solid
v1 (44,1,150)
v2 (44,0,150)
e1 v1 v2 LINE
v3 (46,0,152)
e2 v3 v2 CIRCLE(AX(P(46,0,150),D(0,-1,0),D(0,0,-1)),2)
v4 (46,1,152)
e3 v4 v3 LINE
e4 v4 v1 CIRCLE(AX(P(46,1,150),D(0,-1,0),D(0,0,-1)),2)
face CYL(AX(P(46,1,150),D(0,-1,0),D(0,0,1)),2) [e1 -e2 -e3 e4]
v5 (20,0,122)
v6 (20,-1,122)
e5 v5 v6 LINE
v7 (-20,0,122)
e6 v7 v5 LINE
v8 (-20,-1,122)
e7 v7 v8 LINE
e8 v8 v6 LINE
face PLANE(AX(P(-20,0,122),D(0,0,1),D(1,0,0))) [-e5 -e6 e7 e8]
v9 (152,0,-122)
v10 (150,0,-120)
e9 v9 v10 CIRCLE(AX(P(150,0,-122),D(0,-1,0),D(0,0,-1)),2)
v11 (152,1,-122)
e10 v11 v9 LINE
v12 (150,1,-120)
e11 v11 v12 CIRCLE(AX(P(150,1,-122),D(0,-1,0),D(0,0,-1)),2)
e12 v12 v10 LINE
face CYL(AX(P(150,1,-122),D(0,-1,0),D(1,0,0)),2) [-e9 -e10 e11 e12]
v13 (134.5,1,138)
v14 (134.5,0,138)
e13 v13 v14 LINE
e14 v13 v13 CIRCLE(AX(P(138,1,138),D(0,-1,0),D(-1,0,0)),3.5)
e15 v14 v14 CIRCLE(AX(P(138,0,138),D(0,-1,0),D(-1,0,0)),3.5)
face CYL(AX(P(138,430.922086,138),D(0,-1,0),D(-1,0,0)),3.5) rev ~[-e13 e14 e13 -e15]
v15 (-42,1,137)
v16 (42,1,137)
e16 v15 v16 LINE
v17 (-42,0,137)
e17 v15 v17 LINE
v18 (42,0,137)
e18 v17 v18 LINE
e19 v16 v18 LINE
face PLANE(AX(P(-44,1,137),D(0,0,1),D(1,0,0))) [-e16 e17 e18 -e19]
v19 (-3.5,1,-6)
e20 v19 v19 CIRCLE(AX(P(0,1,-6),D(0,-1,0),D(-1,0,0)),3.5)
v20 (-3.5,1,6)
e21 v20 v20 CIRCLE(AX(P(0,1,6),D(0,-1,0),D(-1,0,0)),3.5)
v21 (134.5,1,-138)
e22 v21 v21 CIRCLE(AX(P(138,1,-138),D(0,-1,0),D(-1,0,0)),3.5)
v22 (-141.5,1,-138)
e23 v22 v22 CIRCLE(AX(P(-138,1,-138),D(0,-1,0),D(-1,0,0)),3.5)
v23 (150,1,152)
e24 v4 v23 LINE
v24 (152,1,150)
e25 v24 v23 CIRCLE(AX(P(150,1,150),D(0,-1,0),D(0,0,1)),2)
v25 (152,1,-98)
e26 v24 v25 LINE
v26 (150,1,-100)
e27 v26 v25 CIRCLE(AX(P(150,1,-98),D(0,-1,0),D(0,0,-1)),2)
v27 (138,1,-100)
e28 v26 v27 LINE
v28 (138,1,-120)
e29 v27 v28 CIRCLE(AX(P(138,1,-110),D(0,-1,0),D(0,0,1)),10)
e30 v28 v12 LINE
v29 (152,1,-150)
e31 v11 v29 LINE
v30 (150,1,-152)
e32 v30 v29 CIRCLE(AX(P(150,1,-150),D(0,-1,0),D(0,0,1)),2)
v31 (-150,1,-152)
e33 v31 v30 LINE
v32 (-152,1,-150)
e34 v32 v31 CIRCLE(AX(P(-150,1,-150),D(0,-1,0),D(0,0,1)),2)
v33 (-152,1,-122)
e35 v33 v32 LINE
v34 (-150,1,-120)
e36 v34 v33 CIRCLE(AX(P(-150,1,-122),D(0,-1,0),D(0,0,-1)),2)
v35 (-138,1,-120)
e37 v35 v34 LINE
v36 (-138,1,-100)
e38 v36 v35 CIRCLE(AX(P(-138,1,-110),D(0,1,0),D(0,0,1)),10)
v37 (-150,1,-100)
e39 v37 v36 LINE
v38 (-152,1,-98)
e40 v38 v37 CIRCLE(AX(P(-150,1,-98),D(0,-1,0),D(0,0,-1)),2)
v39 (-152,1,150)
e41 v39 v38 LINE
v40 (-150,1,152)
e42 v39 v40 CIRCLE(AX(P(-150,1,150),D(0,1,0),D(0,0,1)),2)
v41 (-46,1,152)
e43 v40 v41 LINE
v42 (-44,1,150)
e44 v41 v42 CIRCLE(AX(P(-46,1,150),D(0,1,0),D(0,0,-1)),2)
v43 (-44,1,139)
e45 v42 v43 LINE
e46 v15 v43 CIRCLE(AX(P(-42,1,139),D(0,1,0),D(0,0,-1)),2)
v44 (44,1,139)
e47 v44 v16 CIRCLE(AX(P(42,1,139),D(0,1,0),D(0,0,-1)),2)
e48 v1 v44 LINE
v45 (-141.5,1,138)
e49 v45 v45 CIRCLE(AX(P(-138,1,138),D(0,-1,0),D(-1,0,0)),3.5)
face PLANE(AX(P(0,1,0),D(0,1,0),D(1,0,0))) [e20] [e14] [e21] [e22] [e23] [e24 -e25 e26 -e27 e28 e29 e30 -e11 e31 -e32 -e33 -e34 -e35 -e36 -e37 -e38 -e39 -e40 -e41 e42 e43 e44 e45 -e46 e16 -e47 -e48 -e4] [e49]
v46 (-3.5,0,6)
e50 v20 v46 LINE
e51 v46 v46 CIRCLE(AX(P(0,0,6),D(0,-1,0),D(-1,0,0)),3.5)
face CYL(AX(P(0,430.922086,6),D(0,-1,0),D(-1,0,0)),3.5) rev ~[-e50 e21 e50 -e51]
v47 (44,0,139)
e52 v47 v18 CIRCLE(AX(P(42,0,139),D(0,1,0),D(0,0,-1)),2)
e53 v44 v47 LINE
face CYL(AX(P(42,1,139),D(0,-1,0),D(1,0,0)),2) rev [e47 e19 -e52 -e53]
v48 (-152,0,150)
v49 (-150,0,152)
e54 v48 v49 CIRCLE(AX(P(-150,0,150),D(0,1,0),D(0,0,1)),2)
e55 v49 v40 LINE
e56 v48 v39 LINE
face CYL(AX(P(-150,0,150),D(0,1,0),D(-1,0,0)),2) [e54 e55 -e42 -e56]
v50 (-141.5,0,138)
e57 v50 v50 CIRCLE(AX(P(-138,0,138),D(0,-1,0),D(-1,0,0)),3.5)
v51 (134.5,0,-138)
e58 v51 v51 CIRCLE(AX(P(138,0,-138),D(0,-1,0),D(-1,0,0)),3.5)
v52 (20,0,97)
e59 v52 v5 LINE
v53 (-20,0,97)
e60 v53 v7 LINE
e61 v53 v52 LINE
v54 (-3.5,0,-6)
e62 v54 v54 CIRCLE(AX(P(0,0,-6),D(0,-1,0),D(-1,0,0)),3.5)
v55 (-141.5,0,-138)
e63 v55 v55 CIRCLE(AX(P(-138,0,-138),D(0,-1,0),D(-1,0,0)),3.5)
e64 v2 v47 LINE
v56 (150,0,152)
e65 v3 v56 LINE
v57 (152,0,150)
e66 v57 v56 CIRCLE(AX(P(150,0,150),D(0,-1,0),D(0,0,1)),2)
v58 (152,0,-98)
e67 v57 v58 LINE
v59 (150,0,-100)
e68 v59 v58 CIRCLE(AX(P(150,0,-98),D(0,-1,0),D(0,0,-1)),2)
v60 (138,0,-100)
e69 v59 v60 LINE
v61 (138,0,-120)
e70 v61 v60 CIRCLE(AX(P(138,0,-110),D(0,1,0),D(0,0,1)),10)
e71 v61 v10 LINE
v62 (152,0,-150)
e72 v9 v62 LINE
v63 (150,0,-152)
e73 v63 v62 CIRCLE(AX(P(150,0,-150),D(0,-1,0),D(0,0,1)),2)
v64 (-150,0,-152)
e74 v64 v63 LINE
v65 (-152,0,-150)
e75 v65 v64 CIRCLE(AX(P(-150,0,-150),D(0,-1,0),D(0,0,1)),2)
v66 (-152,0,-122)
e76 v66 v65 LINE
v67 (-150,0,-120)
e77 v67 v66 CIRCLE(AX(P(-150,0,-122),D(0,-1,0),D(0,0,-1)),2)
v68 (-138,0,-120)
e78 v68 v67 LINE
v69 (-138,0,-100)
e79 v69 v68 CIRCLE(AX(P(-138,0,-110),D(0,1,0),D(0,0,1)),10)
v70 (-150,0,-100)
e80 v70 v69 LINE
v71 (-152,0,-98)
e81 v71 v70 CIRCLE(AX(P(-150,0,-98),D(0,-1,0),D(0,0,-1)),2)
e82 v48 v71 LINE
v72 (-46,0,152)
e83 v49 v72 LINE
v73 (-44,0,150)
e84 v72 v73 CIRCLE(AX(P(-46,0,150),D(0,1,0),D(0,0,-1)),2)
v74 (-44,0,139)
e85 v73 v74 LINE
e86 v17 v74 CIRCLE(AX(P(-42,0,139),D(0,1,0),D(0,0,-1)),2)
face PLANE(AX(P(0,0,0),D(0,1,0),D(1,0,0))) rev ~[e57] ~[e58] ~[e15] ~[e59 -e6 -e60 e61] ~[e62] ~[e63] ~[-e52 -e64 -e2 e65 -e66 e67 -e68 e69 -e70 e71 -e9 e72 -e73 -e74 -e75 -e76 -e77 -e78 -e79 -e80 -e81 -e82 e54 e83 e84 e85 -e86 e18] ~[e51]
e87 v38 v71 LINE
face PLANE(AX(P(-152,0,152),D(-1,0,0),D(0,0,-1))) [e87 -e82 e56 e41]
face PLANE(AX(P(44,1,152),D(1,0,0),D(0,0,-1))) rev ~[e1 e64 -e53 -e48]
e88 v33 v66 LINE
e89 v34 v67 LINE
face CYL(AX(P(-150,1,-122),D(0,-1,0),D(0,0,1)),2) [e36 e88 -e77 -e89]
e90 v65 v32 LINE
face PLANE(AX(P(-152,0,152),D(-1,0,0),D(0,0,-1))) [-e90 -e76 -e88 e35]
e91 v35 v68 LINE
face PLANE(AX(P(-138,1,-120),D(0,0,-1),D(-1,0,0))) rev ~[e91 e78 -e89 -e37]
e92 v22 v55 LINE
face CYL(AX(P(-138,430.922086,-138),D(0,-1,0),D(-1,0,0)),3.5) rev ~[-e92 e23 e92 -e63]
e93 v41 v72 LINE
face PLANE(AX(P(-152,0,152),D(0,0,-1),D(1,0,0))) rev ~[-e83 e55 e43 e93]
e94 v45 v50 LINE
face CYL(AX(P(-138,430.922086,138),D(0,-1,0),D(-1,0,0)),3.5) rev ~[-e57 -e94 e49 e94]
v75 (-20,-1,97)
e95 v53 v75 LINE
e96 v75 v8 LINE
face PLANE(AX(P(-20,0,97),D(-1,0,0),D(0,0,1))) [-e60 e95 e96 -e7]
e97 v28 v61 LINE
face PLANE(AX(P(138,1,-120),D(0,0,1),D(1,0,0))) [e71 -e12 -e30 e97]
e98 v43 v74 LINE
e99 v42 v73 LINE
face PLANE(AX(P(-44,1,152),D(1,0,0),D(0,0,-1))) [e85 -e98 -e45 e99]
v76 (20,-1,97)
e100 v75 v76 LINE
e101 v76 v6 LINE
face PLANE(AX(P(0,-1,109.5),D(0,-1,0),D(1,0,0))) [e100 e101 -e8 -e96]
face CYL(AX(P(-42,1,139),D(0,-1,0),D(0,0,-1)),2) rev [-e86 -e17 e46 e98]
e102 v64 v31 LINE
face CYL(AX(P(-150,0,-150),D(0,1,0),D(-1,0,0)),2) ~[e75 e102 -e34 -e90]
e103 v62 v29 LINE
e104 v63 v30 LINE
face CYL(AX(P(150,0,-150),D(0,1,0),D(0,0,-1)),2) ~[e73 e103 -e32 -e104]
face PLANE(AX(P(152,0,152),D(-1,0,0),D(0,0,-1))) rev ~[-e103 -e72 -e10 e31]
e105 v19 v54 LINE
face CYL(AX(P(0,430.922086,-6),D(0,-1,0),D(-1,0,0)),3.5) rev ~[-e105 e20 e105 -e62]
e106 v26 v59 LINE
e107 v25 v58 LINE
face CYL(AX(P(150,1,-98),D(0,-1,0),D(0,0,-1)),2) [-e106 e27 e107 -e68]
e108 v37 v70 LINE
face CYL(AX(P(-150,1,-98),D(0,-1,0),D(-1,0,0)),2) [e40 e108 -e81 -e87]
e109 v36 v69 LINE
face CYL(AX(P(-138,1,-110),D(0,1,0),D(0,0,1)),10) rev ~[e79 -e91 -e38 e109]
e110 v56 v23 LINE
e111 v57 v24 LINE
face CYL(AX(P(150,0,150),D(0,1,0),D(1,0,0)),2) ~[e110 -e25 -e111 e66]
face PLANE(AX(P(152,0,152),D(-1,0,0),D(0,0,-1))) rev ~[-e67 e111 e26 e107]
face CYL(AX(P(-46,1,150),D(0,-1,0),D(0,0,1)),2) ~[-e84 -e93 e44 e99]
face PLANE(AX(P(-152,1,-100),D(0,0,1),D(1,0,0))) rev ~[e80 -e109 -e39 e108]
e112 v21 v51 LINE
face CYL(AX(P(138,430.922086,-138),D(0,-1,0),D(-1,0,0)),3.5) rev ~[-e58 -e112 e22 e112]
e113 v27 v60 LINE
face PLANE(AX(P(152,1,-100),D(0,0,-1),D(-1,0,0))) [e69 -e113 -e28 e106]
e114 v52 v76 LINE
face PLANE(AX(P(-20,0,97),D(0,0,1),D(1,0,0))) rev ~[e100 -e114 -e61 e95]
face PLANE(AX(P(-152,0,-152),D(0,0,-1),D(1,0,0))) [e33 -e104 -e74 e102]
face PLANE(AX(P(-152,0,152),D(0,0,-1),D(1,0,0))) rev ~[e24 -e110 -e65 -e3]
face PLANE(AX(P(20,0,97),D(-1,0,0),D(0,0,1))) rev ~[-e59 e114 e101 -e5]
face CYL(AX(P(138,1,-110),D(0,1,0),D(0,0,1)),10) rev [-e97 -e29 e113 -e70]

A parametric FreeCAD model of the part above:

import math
import FreeCAD as App
import Part
import Sketcher
Q = App.Units.Quantity


def edges_at(feature, points):
    """Names of the edges that pass closest to the given points."""
    edges = feature.Shape.Edges
    near = lambda p: min(range(len(edges)), key=lambda i: edges[i].distToShape(Part.Vertex(*p))[0])
    return sorted({f"Edge{near(p) + 1}" for p in points})

doc = App.newDocument("Part")
body = doc.addObject("PartDesign::Body", "Body")

# Sketch on XZ plane
sketch1 = body.newObject("Sketcher::SketchObject", "Sketch")
sketch1.AttachmentSupport = (doc.getObject("XZ_Plane"), [""])
sketch1.MapMode = "FlatFace"
sketch1.addGeometry(Part.LineSegment(App.Vector(-152, -152, 0), App.Vector(-152, 152, 0)), False)
sketch1.addGeometry(Part.LineSegment(App.Vector(-152, 152, 0), App.Vector(152, 152, 0)), False)
sketch1.addGeometry(Part.LineSegment(App.Vector(152, 152, 0), App.Vector(152, -152, 0)), False)
sketch1.addGeometry(Part.LineSegment(App.Vector(152, -152, 0), App.Vector(-152, -152, 0)), False)
sketch1.addConstraint(Sketcher.Constraint("Coincident", 0, 2, 1, 1))
sketch1.addConstraint(Sketcher.Constraint("Coincident", 1, 2, 2, 1))
sketch1.addConstraint(Sketcher.Constraint("Coincident", 2, 2, 3, 1))
sketch1.addConstraint(Sketcher.Constraint("Coincident", 3, 2, 0, 1))
sketch1.addConstraint(Sketcher.Constraint("Vertical", 0))
sketch1.addConstraint(Sketcher.Constraint("Horizontal", 1))
sketch1.addConstraint(Sketcher.Constraint("Vertical", 2))
sketch1.addConstraint(Sketcher.Constraint("Horizontal", 3))
sketch1.addConstraint(Sketcher.Constraint("Symmetric", 0, 2, 2, 2, -1, 1))
sketch1.addConstraint(Sketcher.Constraint("Equal", 3, 0))
sketch1.addConstraint(Sketcher.Constraint("DistanceX", 1, 1, 1, 2, Q("304 mm")))
pad1 = body.newObject("PartDesign::Pad", "Pad")
pad1.Profile = sketch1
pad1.Length = 1
pad1.Reversed = True

# Sketch on XZ plane
sketch2 = body.newObject("Sketcher::SketchObject", "Sketch001")
sketch2.AttachmentSupport = (doc.getObject("XZ_Plane"), [""])
sketch2.MapMode = "FlatFace"
sketch2.AttachmentOffset = App.Placement(App.Vector(0, 0, -1), App.Rotation())
sketch2.addGeometry(Part.LineSegment(App.Vector(-44, 137, 0), App.Vector(-44, 152, 0)), False)
sketch2.addGeometry(Part.LineSegment(App.Vector(-44, 152, 0), App.Vector(44, 152, 0)), False)
sketch2.addGeometry(Part.LineSegment(App.Vector(44, 152, 0), App.Vector(44, 137, 0)), False)
sketch2.addGeometry(Part.LineSegment(App.Vector(44, 137, 0), App.Vector(-44, 137, 0)), False)
sketch2.addGeometry(Part.LineSegment(App.Vector(-152, -100, 0), App.Vector(-138, -100, 0)), False)
sketch2.addGeometry(Part.ArcOfCircle(Part.Circle(App.Vector(-138, -110, 0), App.Vector(0, 0, 1), 10), math.radians(-90), math.radians(90)), False)
sketch2.addGeometry(Part.LineSegment(App.Vector(-138, -120, 0), App.Vector(-152, -120, 0)), False)
sketch2.addGeometry(Part.LineSegment(App.Vector(-152, -120, 0), App.Vector(-152, -100, 0)), False)
sketch2.addGeometry(Part.LineSegment(App.Vector(138, -100, 0), App.Vector(152, -100, 0)), False)
sketch2.addGeometry(Part.LineSegment(App.Vector(152, -100, 0), App.Vector(152, -120, 0)), False)
sketch2.addGeometry(Part.LineSegment(App.Vector(152, -120, 0), App.Vector(138, -120, 0)), False)
sketch2.addGeometry(Part.ArcOfCircle(Part.Circle(App.Vector(138, -110, 0), App.Vector(0, 0, 1), 10), math.radians(90), math.radians(270)), False)
sketch2.addConstraint(Sketcher.Constraint("Coincident", 0, 2, 1, 1))
sketch2.addConstraint(Sketcher.Constraint("Coincident", 1, 2, 2, 1))
sketch2.addConstraint(Sketcher.Constraint("Coincident", 2, 2, 3, 1))
sketch2.addConstraint(Sketcher.Constraint("Coincident", 3, 2, 0, 1))
sketch2.addConstraint(Sketcher.Constraint("Tangent", 4, 2, 5, 2))
sketch2.addConstraint(Sketcher.Constraint("Tangent", 5, 1, 6, 1))
sketch2.addConstraint(Sketcher.Constraint("Coincident", 6, 2, 7, 1))
sketch2.addConstraint(Sketcher.Constraint("Coincident", 7, 2, 4, 1))
sketch2.addConstraint(Sketcher.Constraint("Coincident", 8, 2, 9, 1))
sketch2.addConstraint(Sketcher.Constraint("Coincident", 9, 2, 10, 1))
sketch2.addConstraint(Sketcher.Constraint("Tangent", 10, 2, 11, 2))
sketch2.addConstraint(Sketcher.Constraint("Tangent", 11, 1, 8, 1))
sketch2.addConstraint(Sketcher.Constraint("Vertical", 0))
sketch2.addConstraint(Sketcher.Constraint("Horizontal", 1))
sketch2.addConstraint(Sketcher.Constraint("Vertical", 2))
sketch2.addConstraint(Sketcher.Constraint("Horizontal", 3))
sketch2.addConstraint(Sketcher.Constraint("Horizontal", 4))
sketch2.addConstraint(Sketcher.Constraint("Horizontal", 6))
sketch2.addConstraint(Sketcher.Constraint("Vertical", 7))
sketch2.addConstraint(Sketcher.Constraint("Horizontal", 8))
sketch2.addConstraint(Sketcher.Constraint("Vertical", 9))
sketch2.addConstraint(Sketcher.Constraint("Horizontal", 10))
sketch2.addConstraint(Sketcher.Constraint("Equal", 5, 11))
sketch2.addConstraint(Sketcher.Constraint("Symmetric", 5, 3, 11, 3, -2))
sketch2.addConstraint(Sketcher.Constraint("Equal", 6, 8))
sketch2.addConstraint(Sketcher.Constraint("Radius", 5, Q("10 mm")))
sketch2.addConstraint(Sketcher.Constraint("DistanceX", 1, 1, 1, 2, Q("88 mm")))
sketch2.addConstraint(Sketcher.Constraint("DistanceX", 4, 1, 4, 2, Q("14 mm")))
sketch2.addConstraint(Sketcher.Constraint("DistanceY", 0, 1, 0, 2, Q("15 mm")))
sketch2.addConstraint(Sketcher.Constraint("DistanceX", 5, 3, -1, 1, Q("138 mm")))
sketch2.addConstraint(Sketcher.Constraint("DistanceY", 5, 3, -1, 1, Q("110 mm")))
sketch2.addConstraint(Sketcher.Constraint("DistanceX", 0, 2, -1, 1, Q("44 mm")))
sketch2.addConstraint(Sketcher.Constraint("DistanceY", -1, 1, 0, 2, Q("152 mm")))
pocket1 = body.newObject("PartDesign::Pocket", "Pocket")
pocket1.Profile = sketch2
pocket1.Type = "ThroughAll"
pocket1.Reversed = True
doc.recompute()

fillet = body.newObject("PartDesign::Fillet", "Fillet")
fillet.Base = (pocket1, edges_at(pocket1, [
    (44, 0.5, 152),
    (-44, 0.5, 152),
    (-44, 0.5, 137),
    (44, 0.5, 137),
    (-152, 0.5, -100),
    (-152, 0.5, -120),
    (152, 0.5, -120),
    (152, 0.5, -100),
    (-152, 0.5, -152),
    (152, 0.5, -152),
    (152, 0.5, 152),
    (-152, 0.5, 152),
]))
fillet.Radius = 2

# Sketch on XZ plane
sketch3 = body.newObject("Sketcher::SketchObject", "Sketch002")
sketch3.AttachmentSupport = (doc.getObject("XZ_Plane"), [""])
sketch3.MapMode = "FlatFace"
sketch3.AttachmentOffset = App.Placement(App.Vector(0, 0, -1), App.Rotation())
sketch3.addGeometry(Part.Circle(App.Vector(-138, 138, 0), App.Vector(0, 0, 1), 3.5), False)
sketch3.addGeometry(Part.Circle(App.Vector(138, -138, 0), App.Vector(0, 0, 1), 3.5), False)
sketch3.addGeometry(Part.Circle(App.Vector(-138, -138, 0), App.Vector(0, 0, 1), 3.5), False)
sketch3.addGeometry(Part.Circle(App.Vector(138, 138, 0), App.Vector(0, 0, 1), 3.5), False)
sketch3.addGeometry(Part.Circle(App.Vector(0, 6, 0), App.Vector(0, 0, 1), 3.5), False)
sketch3.addGeometry(Part.Circle(App.Vector(0, -6, 0), App.Vector(0, 0, 1), 3.5), False)
sketch3.addConstraint(Sketcher.Constraint("Equal", 0, 1))
sketch3.addConstraint(Sketcher.Constraint("Equal", 1, 2))
sketch3.addConstraint(Sketcher.Constraint("Equal", 2, 3))
sketch3.addConstraint(Sketcher.Constraint("Equal", 3, 4))
sketch3.addConstraint(Sketcher.Constraint("Equal", 4, 5))
sketch3.addConstraint(Sketcher.Constraint("Symmetric", 0, 3, 1, 3, -1, 1))
sketch3.addConstraint(Sketcher.Constraint("Symmetric", 2, 3, 3, 3, -1, 1))
sketch3.addConstraint(Sketcher.Constraint("Symmetric", 4, 3, 5, 3, -1, 1))
sketch3.addConstraint(Sketcher.Constraint("Symmetric", 1, 3, 2, 3, -2))
sketch3.addConstraint(Sketcher.Constraint("PointOnObject", 4, 3, -2))
sketch3.addConstraint(Sketcher.Constraint("Diameter", 0, Q("7 mm")))
sketch3.addConstraint(Sketcher.Constraint("DistanceX", 0, 3, -1, 1, Q("138 mm")))
sketch3.addConstraint(Sketcher.Constraint("DistanceY", -1, 1, 0, 3, Q("138 mm")))
sketch3.addConstraint(Sketcher.Constraint("DistanceY", -1, 1, 4, 3, Q("6 mm")))
doc.recompute()
hole = body.newObject("PartDesign::Hole", "Hole")
hole.Profile = sketch3
hole.ThreadType = "None"
hole.Diameter = 7
hole.DepthType = "ThroughAll"
hole.Reversed = True

# Sketch on XZ plane
sketch4 = body.newObject("Sketcher::SketchObject", "Sketch003")
sketch4.AttachmentSupport = (doc.getObject("XZ_Plane"), [""])
sketch4.MapMode = "FlatFace"
sketch4.addGeometry(Part.LineSegment(App.Vector(-20, 122, 0), App.Vector(-20, 97, 0)), False)
sketch4.addGeometry(Part.LineSegment(App.Vector(-20, 97, 0), App.Vector(20, 97, 0)), False)
sketch4.addGeometry(Part.LineSegment(App.Vector(20, 97, 0), App.Vector(20, 122, 0)), False)
sketch4.addGeometry(Part.LineSegment(App.Vector(20, 122, 0), App.Vector(-20, 122, 0)), False)
sketch4.addConstraint(Sketcher.Constraint("Coincident", 0, 2, 1, 1))
sketch4.addConstraint(Sketcher.Constraint("Coincident", 1, 2, 2, 1))
sketch4.addConstraint(Sketcher.Constraint("Coincident", 2, 2, 3, 1))
sketch4.addConstraint(Sketcher.Constraint("Coincident", 3, 2, 0, 1))
sketch4.addConstraint(Sketcher.Constraint("Vertical", 0))
sketch4.addConstraint(Sketcher.Constraint("Horizontal", 1))
sketch4.addConstraint(Sketcher.Constraint("Vertical", 2))
sketch4.addConstraint(Sketcher.Constraint("Horizontal", 3))
sketch4.addConstraint(Sketcher.Constraint("DistanceX", 1, 1, 1, 2, Q("40 mm")))
sketch4.addConstraint(Sketcher.Constraint("DistanceY", 0, 2, 0, 1, Q("25 mm")))
sketch4.addConstraint(Sketcher.Constraint("DistanceX", 0, 2, -1, 1, Q("20 mm")))
sketch4.addConstraint(Sketcher.Constraint("DistanceY", -1, 1, 0, 2, Q("97 mm")))
pad2 = body.newObject("PartDesign::Pad", "Pad001")
pad2.Profile = sketch4
pad2.Length = 1

doc.recompute()
